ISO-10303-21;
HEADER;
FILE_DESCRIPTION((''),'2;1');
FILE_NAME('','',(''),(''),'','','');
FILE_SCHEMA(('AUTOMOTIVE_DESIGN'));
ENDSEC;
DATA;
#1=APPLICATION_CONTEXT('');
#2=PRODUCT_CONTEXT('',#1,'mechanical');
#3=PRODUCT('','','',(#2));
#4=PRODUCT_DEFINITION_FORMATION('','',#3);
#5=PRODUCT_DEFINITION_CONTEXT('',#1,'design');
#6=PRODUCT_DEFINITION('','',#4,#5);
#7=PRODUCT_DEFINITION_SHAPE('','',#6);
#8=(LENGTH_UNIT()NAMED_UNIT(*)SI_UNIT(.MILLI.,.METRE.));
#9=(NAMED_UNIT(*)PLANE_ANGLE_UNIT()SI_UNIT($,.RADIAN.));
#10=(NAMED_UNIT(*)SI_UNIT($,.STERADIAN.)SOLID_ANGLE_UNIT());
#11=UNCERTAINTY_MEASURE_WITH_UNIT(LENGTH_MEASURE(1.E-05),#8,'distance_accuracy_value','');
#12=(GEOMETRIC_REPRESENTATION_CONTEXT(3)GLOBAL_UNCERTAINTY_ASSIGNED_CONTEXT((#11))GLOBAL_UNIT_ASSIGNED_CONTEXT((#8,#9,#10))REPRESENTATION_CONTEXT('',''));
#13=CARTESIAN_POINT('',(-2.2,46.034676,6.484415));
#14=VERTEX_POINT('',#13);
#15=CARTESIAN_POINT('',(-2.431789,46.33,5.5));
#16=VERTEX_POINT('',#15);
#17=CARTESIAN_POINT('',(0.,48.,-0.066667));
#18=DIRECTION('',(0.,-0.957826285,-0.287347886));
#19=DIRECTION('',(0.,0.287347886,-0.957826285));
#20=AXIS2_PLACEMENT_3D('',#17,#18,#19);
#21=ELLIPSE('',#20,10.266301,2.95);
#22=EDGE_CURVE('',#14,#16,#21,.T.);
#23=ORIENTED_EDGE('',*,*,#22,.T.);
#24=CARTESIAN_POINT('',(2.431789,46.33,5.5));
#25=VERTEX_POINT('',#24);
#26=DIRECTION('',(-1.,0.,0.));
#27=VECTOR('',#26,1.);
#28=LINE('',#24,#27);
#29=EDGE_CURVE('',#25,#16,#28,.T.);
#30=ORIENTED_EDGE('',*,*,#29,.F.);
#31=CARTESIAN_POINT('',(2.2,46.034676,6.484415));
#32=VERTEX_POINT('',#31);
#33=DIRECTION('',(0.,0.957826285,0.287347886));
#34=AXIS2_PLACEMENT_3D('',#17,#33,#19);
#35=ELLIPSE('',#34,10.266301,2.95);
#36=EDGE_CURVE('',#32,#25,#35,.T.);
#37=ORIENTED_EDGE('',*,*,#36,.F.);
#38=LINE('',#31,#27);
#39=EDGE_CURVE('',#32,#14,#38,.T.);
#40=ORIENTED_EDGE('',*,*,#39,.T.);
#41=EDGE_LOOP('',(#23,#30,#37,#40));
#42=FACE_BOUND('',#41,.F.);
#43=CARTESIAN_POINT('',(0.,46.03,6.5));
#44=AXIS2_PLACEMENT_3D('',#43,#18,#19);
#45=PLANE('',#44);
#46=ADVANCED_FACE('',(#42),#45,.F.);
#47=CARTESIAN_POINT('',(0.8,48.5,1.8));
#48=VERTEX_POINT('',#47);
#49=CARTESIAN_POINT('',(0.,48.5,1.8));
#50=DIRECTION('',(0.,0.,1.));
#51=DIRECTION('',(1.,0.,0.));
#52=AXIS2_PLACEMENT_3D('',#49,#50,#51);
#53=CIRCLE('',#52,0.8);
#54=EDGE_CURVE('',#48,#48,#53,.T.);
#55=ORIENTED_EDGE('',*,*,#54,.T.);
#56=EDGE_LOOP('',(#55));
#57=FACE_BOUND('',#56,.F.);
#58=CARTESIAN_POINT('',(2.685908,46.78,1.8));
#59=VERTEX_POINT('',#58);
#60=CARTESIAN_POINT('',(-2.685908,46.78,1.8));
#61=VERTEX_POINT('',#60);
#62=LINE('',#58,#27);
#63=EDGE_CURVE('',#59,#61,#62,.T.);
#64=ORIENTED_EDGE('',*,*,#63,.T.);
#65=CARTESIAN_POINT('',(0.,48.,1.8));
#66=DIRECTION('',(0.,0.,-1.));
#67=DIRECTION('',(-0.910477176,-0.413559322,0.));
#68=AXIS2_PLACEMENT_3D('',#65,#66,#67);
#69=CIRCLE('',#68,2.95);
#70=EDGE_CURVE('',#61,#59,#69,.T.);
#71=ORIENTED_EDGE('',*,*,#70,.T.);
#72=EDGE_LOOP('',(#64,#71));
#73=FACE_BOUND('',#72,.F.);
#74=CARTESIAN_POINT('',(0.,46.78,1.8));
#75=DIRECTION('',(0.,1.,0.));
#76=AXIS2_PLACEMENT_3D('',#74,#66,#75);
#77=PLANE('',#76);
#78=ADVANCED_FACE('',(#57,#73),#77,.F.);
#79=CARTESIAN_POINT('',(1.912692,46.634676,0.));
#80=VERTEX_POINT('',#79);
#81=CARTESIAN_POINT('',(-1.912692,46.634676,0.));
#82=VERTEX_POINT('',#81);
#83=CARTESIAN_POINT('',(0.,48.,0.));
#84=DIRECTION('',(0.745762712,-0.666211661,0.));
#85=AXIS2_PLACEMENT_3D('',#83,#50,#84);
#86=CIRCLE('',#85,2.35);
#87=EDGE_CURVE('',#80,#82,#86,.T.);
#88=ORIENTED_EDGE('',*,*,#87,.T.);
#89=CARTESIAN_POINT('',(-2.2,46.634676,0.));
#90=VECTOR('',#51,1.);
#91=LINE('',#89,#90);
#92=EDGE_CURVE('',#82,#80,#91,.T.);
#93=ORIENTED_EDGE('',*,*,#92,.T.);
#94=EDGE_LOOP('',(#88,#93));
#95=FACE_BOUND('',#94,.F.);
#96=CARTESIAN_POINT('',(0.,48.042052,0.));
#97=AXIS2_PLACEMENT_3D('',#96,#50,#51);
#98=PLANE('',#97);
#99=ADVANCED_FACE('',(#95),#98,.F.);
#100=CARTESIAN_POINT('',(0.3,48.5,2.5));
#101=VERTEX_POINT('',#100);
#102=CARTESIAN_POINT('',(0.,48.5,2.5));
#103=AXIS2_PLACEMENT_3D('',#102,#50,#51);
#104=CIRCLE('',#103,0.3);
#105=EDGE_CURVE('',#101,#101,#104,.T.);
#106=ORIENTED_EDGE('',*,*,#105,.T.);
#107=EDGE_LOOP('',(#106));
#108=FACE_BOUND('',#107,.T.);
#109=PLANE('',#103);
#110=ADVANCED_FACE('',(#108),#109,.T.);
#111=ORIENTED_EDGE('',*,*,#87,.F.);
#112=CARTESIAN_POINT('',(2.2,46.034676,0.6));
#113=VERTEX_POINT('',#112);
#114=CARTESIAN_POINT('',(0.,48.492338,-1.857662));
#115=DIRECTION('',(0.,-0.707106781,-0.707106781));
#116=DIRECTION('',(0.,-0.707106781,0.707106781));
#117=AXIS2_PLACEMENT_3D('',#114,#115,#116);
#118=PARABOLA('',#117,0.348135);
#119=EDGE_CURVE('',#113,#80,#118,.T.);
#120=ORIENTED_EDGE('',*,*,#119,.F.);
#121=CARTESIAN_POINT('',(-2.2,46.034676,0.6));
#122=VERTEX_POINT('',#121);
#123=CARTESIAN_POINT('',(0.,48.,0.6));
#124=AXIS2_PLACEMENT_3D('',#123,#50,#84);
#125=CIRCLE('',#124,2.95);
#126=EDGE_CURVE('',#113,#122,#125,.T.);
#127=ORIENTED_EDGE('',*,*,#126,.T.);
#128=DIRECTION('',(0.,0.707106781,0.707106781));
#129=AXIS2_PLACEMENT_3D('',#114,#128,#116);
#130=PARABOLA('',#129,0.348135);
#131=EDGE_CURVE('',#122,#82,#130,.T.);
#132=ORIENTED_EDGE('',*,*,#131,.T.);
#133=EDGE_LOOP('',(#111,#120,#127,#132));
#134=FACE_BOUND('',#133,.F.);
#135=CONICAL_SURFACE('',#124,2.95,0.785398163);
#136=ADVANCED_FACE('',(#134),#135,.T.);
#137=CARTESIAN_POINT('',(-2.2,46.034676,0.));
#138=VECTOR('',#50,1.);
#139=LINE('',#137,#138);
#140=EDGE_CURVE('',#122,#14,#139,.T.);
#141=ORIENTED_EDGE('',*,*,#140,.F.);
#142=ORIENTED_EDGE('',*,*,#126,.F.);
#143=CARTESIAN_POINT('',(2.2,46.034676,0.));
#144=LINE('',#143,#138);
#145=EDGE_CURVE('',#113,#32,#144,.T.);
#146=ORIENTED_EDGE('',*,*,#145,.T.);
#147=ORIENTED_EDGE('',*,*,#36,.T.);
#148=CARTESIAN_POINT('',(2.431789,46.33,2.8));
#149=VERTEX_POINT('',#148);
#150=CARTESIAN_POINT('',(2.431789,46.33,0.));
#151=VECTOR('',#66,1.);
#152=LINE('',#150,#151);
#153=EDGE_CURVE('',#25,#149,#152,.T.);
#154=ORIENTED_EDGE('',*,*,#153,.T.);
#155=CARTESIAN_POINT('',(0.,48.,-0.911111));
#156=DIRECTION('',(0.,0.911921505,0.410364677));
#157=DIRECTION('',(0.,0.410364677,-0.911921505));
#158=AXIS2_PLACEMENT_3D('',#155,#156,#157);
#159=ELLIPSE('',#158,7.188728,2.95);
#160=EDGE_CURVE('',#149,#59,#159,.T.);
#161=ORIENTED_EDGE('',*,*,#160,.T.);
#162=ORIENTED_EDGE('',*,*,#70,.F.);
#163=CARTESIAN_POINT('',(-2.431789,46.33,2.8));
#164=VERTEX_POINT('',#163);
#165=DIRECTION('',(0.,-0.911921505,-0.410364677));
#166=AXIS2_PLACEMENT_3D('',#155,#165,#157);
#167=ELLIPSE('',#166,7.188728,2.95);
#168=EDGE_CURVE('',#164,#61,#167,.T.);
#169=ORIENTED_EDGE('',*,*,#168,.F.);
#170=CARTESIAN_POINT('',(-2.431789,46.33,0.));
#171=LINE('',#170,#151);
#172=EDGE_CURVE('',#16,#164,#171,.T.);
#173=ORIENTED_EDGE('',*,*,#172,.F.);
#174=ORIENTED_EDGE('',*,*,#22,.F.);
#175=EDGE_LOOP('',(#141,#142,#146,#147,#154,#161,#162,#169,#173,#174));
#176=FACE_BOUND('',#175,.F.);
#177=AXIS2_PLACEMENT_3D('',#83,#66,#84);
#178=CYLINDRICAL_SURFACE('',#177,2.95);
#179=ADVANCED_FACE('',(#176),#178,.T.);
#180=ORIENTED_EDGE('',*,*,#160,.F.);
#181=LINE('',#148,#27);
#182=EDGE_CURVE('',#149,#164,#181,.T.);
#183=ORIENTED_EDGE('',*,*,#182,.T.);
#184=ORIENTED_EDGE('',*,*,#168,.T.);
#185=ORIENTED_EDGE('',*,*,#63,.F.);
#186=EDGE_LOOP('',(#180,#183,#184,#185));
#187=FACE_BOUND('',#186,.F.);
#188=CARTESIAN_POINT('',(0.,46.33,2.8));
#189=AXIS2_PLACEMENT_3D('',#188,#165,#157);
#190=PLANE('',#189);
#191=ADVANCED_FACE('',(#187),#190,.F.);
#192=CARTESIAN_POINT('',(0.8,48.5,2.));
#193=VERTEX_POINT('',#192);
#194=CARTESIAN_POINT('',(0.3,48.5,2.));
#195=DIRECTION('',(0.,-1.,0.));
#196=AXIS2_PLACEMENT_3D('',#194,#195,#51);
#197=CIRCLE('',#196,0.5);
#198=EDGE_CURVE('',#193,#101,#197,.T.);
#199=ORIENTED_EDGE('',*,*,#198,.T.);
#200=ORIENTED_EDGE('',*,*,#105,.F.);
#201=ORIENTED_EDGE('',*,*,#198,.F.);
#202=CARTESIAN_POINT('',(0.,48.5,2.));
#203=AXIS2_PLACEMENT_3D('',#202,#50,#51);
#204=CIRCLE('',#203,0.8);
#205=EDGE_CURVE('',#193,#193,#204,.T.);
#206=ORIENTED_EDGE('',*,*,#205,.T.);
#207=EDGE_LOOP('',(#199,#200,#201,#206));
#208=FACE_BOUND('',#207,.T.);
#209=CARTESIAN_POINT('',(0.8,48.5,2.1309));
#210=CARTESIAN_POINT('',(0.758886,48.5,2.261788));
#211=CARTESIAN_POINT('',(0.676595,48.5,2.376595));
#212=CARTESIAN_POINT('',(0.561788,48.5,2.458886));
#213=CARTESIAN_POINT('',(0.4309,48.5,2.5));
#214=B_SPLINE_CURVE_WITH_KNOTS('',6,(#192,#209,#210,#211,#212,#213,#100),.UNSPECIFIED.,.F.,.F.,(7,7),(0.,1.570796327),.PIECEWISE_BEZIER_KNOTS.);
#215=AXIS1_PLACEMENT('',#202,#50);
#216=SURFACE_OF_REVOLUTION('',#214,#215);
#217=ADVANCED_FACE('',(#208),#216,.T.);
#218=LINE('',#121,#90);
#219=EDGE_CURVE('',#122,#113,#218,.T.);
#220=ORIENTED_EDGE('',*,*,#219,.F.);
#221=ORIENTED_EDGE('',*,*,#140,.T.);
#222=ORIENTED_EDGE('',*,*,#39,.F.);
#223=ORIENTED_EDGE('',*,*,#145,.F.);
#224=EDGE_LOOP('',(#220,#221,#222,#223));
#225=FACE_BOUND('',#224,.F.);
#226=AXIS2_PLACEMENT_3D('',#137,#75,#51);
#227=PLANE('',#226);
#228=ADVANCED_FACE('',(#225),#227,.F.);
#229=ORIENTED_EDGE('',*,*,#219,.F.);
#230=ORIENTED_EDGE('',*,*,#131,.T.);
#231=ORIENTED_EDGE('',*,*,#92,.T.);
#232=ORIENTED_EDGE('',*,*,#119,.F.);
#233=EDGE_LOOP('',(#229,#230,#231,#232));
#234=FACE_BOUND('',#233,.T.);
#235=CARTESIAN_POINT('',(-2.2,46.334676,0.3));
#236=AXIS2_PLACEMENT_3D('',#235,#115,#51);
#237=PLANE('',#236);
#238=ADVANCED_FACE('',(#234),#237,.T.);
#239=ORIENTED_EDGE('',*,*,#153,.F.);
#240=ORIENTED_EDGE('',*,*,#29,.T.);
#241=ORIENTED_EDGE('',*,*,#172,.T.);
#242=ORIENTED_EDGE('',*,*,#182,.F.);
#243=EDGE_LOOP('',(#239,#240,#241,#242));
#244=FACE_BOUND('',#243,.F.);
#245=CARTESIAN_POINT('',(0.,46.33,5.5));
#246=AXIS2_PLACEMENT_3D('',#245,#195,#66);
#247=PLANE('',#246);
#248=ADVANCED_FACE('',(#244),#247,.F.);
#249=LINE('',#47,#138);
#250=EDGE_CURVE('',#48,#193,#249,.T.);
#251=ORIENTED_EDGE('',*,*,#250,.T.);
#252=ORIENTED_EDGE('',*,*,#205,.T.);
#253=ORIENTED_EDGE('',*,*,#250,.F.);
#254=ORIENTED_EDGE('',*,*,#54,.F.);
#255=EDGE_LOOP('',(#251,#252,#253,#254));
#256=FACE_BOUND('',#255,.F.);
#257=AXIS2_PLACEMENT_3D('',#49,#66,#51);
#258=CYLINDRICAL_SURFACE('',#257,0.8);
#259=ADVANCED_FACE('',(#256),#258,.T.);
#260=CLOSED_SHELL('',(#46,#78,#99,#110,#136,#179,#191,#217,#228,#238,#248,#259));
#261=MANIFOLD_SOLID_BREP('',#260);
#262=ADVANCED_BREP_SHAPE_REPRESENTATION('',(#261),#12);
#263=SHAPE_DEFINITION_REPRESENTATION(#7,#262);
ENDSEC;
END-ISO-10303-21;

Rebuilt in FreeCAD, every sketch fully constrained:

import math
import FreeCAD as App
import Part
import Sketcher


def edges_at(feature, points):
    """Names of the edges that pass closest to the given points."""
    edges = feature.Shape.Edges
    near = lambda p: min(range(len(edges)), key=lambda i: edges[i].distToShape(Part.Vertex(*p))[0])
    return sorted({f"Edge{near(p) + 1}" for p in points})

doc = App.newDocument("Part")
body = doc.addObject("PartDesign::Body", "Body")

# Sketch on XY plane
sketch1 = body.newObject("Sketcher::SketchObject", "Sketch")
sketch1.AttachmentSupport = (doc.getObject("XY_Plane"), [""])
sketch1.MapMode = "FlatFace"
sketch1.addGeometry([
    Part.ArcOfCircle(Part.Circle(App.Vector(0, 0, 0), App.Vector(0, 0, 1), 2.95), math.radians(-41.775348), math.radians(221.775348)),
    Part.LineSegment(App.Vector(-2.2, -1.965324, 0), App.Vector(2.2, -1.965324, 0)),
], False)
sketch1.addConstraint([
    Sketcher.Constraint("Coincident", 0, 1, 1, 2),
    Sketcher.Constraint("Coincident", 1, 1, 0, 2),
    Sketcher.Constraint("Horizontal", 1),
    Sketcher.Constraint("Coincident", 0, 3, -1, 1),
    Sketcher.Constraint("Radius", 0, 2.95),
    Sketcher.Constraint("DistanceX", 1, 1, 1, 2, 4.4),
])
pad1 = body.newObject("PartDesign::Pad", "Pad")
pad1.Profile = sketch1
pad1.Length = 6.5

# Sketch on YZ plane
sketch2 = body.newObject("Sketcher::SketchObject", "Sketch001")
sketch2.AttachmentSupport = (doc.getObject("YZ_Plane"), [""])
sketch2.MapMode = "FlatFace"
sketch2.addGeometry([
    Part.LineSegment(App.Vector(-1.97, 6.5, 0), App.Vector(-1.67, 5.5, 0)),  # 0
    Part.LineSegment(App.Vector(-1.67, 5.5, 0), App.Vector(-1.67, 2.8, 0)),  # 1
    Part.LineSegment(App.Vector(-1.67, 2.8, 0), App.Vector(-1.22, 1.8, 0)),  # 2
    Part.LineSegment(App.Vector(-1.22, 1.8, 0), App.Vector(4, 1.8, 0)),  # 3
    Part.LineSegment(App.Vector(4, 1.8, 0), App.Vector(4, 6.5, 0)),  # 4
    Part.LineSegment(App.Vector(4, 6.5, 0), App.Vector(-1.97, 6.5, 0)),  # 5
], False)
sketch2.addConstraint([
    Sketcher.Constraint("Coincident", 0, 2, 1, 1),
    Sketcher.Constraint("Coincident", 1, 2, 2, 1),
    Sketcher.Constraint("Coincident", 2, 2, 3, 1),
    Sketcher.Constraint("Coincident", 3, 2, 4, 1),
    Sketcher.Constraint("Coincident", 4, 2, 5, 1),
    Sketcher.Constraint("Coincident", 5, 2, 0, 1),
    Sketcher.Constraint("Vertical", 1),
    Sketcher.Constraint("Horizontal", 3),
    Sketcher.Constraint("Vertical", 4),
    Sketcher.Constraint("Horizontal", 5),
    Sketcher.Constraint("DistanceY", 1, 2, 1, 1, 2.7),
    Sketcher.Constraint("DistanceY", 4, 1, 4, 2, 4.7),
    Sketcher.Constraint("DistanceX", -1, 1, 3, 2, 4.0),
    Sketcher.Constraint("DistanceY", 2, 2, 1, 2, 1.0),
    Sketcher.Constraint("DistanceX", 3, 1, 3, 2, 5.22),
    Sketcher.Constraint("DistanceX", 5, 2, 5, 1, 5.97),
    Sketcher.Constraint("DistanceY", -1, 1, 0, 2, 5.5),
    Sketcher.Constraint("DistanceX", 5, 2, 0, 2, 0.3),
])
pocket1 = body.newObject("PartDesign::Pocket", "Pocket")
pocket1.Profile = sketch2
pocket1.Type = "ThroughAll"
pocket1.Midplane = True

# Sketch on XY plane
sketch3 = body.newObject("Sketcher::SketchObject", "Sketch002")
sketch3.AttachmentSupport = (doc.getObject("XY_Plane"), [""])
sketch3.MapMode = "FlatFace"
sketch3.AttachmentOffset = App.Placement(App.Vector(0, 0, 1.8), App.Rotation())
sketch3.addGeometry(Part.Circle(App.Vector(0, 0.5, 0), App.Vector(0, 0, 1), 0.8), False)
sketch3.addConstraint([
    Sketcher.Constraint("PointOnObject", 0, 3, -2),
    Sketcher.Constraint("Diameter", 0, 1.6),
    Sketcher.Constraint("DistanceY", -1, 1, 0, 3, 0.5),
])
pad2 = body.newObject("PartDesign::Pad", "Pad001")
pad2.Profile = sketch3
pad2.Length = 0.7
doc.recompute()

fillet = body.newObject("PartDesign::Fillet", "Fillet")
fillet.Base = (pad2, edges_at(pad2, [(-0.8, 0.5, 2.5)]))
fillet.Radius = 0.5
doc.recompute()

chamfer = body.newObject("PartDesign::Chamfer", "Chamfer")
chamfer.Base = (fillet, edges_at(fillet, [(0, 2.95, 0), (0, -1.965, 0)]))
chamfer.Size = 0.6
body2 = doc.addObject("PartDesign::Body", "Body001")
doc.recompute()

body.Placement = App.Placement(App.Vector(0, 48, 0), App.Rotation(App.Vector(0, 0, 1), 0))
boolean = body2.newObject("PartDesign::Boolean", "Boolean")
boolean.Type = "Fuse"
boolean.addObjects([body])

doc.recompute()
